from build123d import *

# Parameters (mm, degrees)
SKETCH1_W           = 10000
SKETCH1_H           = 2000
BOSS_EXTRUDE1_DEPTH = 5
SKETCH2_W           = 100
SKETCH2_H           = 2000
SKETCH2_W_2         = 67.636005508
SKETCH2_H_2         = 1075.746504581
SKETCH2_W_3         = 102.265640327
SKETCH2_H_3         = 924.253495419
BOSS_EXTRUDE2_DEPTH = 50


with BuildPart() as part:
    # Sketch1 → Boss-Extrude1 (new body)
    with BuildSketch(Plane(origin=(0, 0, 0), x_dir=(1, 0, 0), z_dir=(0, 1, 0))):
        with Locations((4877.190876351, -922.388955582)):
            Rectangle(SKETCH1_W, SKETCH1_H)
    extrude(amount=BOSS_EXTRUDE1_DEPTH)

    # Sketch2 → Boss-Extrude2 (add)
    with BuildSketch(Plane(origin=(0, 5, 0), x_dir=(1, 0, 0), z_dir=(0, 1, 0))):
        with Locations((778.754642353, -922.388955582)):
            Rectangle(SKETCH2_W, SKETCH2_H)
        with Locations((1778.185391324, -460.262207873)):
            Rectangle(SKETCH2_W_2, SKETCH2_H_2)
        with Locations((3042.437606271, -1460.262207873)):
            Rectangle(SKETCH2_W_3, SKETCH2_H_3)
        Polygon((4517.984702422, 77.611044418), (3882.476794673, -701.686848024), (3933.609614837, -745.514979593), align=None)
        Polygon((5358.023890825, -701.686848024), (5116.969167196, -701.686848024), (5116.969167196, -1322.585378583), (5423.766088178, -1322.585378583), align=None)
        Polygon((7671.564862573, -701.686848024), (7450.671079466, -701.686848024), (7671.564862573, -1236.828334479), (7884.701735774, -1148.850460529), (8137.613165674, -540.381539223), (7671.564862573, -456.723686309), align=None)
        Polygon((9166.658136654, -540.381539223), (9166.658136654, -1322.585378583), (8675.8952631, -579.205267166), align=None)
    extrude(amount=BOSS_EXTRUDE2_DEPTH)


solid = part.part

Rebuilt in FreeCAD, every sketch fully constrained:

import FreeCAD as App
import Part
import Sketcher


def add_polygon(sketch, points):
    """Adds a closed chain of lines whose ends are joined by coincident constraints."""
    first, n = sketch.GeometryCount, len(points)
    for a, b in zip(points, points[1:] + points[:1]):
        sketch.addGeometry(Part.LineSegment(App.Vector(*a, 0), App.Vector(*b, 0)), False)
    for i in range(n):
        sketch.addConstraint(Sketcher.Constraint("Coincident", first + i, 2, first + (i + 1) % n, 1))

doc = App.newDocument("Part")
body = doc.addObject("PartDesign::Body", "Body")

sketch1 = doc.addObject("Sketcher::SketchObject", "Sketch")
body.addObject(sketch1)
sketch1.AttachmentSupport = (doc.XZ_Plane, [""])
sketch1.MapMode = "FlatFace"
add_polygon(sketch1, [(-122.809124, -77.611044), (-122.809124, 1922.388956), (9877.190876, 1922.388956), (9877.190876, -77.611044)])
sketch1.addConstraint(Sketcher.Constraint("Vertical", 0))
sketch1.addConstraint(Sketcher.Constraint("Horizontal", 1))
sketch1.addConstraint(Sketcher.Constraint("Vertical", 2))
sketch1.addConstraint(Sketcher.Constraint("Horizontal", 3))
sketch1.addConstraint(Sketcher.Constraint("DistanceX", 1, 1, 1, 2, 10000.0))
sketch1.addConstraint(Sketcher.Constraint("DistanceY", 0, 1, 0, 2, 2000.0))
sketch1.addConstraint(Sketcher.Constraint("DistanceX", 0, 2, -1, 1, 122.809124))
sketch1.addConstraint(Sketcher.Constraint("DistanceY", -1, 1, 0, 2, 1922.388956))
pad1 = doc.addObject("PartDesign::Pad", "Pad")
body.addObject(pad1)
pad1.Profile = sketch1
pad1.Length = 5
pad1.Reversed = True

sketch2 = doc.addObject("Sketcher::SketchObject", "Sketch001")
body.addObject(sketch2)
sketch2.AttachmentSupport = (doc.XZ_Plane, [""])
sketch2.MapMode = "FlatFace"
sketch2.AttachmentOffset = App.Placement(App.Vector(0, 0, -5), App.Rotation())
add_polygon(sketch2, [(728.754642, -77.611044), (728.754642, 1922.388956), (828.754642, 1922.388956), (828.754642, -77.611044)])
add_polygon(sketch2, [(1744.367389, -77.611044), (1744.367389, 998.13546), (1812.003394, 998.13546), (1812.003394, -77.611044)])
add_polygon(sketch2, [(2991.304786, 998.13546), (2991.304786, 1922.388956), (3093.570426, 1922.388956), (3093.570426, 998.13546)])
add_polygon(sketch2, [(4517.984702, -77.611044), (3882.476795, 701.686848), (3933.609615, 745.51498)])
add_polygon(sketch2, [(5358.023891, 701.686848), (5116.969167, 701.686848), (5116.969167, 1322.585379), (5423.766088, 1322.585379)])
add_polygon(sketch2, [(7671.564863, 701.686848), (7450.671079, 701.686848), (7671.564863, 1236.828334), (7884.701736, 1148.850461), (8137.613166, 540.381539), (7671.564863, 456.723686)])
add_polygon(sketch2, [(9166.658137, 1322.585379), (9166.658137, 540.381539), (8675.895263, 579.205267)])
sketch2.addConstraint(Sketcher.Constraint("Vertical", 0))
sketch2.addConstraint(Sketcher.Constraint("Horizontal", 1))
sketch2.addConstraint(Sketcher.Constraint("Vertical", 2))
sketch2.addConstraint(Sketcher.Constraint("Horizontal", 3))
sketch2.addConstraint(Sketcher.Constraint("Vertical", 4))
sketch2.addConstraint(Sketcher.Constraint("Horizontal", 5))
sketch2.addConstraint(Sketcher.Constraint("Vertical", 6))
sketch2.addConstraint(Sketcher.Constraint("Horizontal", 7))
sketch2.addConstraint(Sketcher.Constraint("Vertical", 8))
sketch2.addConstraint(Sketcher.Constraint("Horizontal", 9))
sketch2.addConstraint(Sketcher.Constraint("Vertical", 10))
sketch2.addConstraint(Sketcher.Constraint("Horizontal", 11))
sketch2.addConstraint(Sketcher.Constraint("Horizontal", 15))
sketch2.addConstraint(Sketcher.Constraint("Vertical", 16))
sketch2.addConstraint(Sketcher.Constraint("Horizontal", 17))
sketch2.addConstraint(Sketcher.Constraint("Horizontal", 19))
sketch2.addConstraint(Sketcher.Constraint("Vertical", 24))
sketch2.addConstraint(Sketcher.Constraint("Vertical", 25))
sketch2.addConstraint(Sketcher.Constraint("Perpendicular", 20, 21))
sketch2.addConstraint(Sketcher.Constraint("Horizontal", 3, 2, 6, 2))
sketch2.addConstraint(Sketcher.Constraint("Horizontal", 1, 2, 8, 2))
sketch2.addConstraint(Sketcher.Constraint("Horizontal", 5, 2, 10, 2))
sketch2.addConstraint(Sketcher.Constraint("Horizontal", 7, 2, 14, 2))
sketch2.addConstraint(Sketcher.Constraint("Horizontal", 12, 2, 15, 2))
sketch2.addConstraint(Sketcher.Constraint("Horizontal", 18, 2, 19, 2))
sketch2.addConstraint(Sketcher.Constraint("Horizontal", 22, 2, 25, 2))
sketch2.addConstraint(Sketcher.Constraint("Horizontal", 17, 2, 27, 2))
sketch2.addConstraint(Sketcher.Constraint("Vertical", 20, 2, 23, 2))
sketch2.addConstraint(Sketcher.Constraint("DistanceX", 1, 1, 1, 2, 100.0))
sketch2.addConstraint(Sketcher.Constraint("DistanceY", 0, 1, 0, 2, 2000.0))
sketch2.addConstraint(Sketcher.Constraint("Distance", 13, 67.345901))
sketch2.addConstraint(Sketcher.Constraint("Distance", 14, 1009.470502))
sketch2.addConstraint(Sketcher.Constraint("Distance", 18, 624.369299))
sketch2.addConstraint(Sketcher.Constraint("DistanceX", 9, 1, 9, 2, 102.26564))
sketch2.addConstraint(Sketcher.Constraint("DistanceX", 17, 1, 17, 2, 306.796921))
sketch2.addConstraint(Sketcher.Constraint("DistanceY", 16, 1, 16, 2, 620.898531))
sketch2.addConstraint(Sketcher.Constraint("DistanceY", 24, 1, 24, 2, 244.963162))
sketch2.addConstraint(Sketcher.Constraint("DistanceY", 25, 2, 25, 1, 782.203839))
sketch2.addConstraint(Sketcher.Constraint("DistanceX", 5, 2, 12, 2, 2070.473401))
sketch2.addConstraint(Sketcher.Constraint("DistanceY", 13, 2, 16, 2, 577.070399))
sketch2.addConstraint(Sketcher.Constraint("DistanceX", 21, 2, 25, 2, 1281.956401))
sketch2.addConstraint(Sketcher.Constraint("DistanceX", 23, 2, 26, 2, 1004.330401))
sketch2.addConstraint(Sketcher.Constraint("Distance", 12, 1005.572228))
sketch2.addConstraint(Sketcher.Constraint("Distance", 26, 492.29613))
sketch2.addConstraint(Sketcher.Constraint("DistanceX", 5, 1, 5, 2, 67.636006))
sketch2.addConstraint(Sketcher.Constraint("DistanceX", 19, 2, 19, 1, 220.893783))
sketch2.addConstraint(Sketcher.Constraint("DistanceY", 4, 1, 4, 2, 1075.746505))
sketch2.addConstraint(Sketcher.Constraint("DistanceX", -1, 1, 4, 2, 1744.367389))
sketch2.addConstraint(Sketcher.Constraint("DistanceY", -1, 1, 4, 2, 998.13546))
sketch2.addConstraint(Sketcher.Constraint("DistanceX", -1, 1, 17, 2, 5423.766088))
sketch2.addConstraint(Sketcher.Constraint("DistanceX", -1, 1, 19, 2, 7450.671079))
sketch2.addConstraint(Sketcher.Constraint("DistanceY", -1, 1, 21, 2, 1148.850461))
sketch2.addConstraint(Sketcher.Constraint("DistanceX", 1, 2, 5, 2, 983.248752))
sketch2.addConstraint(Sketcher.Constraint("DistanceX", 10, 2, 12, 2, 788.906368))
sketch2.addConstraint(Sketcher.Constraint("DistanceX", 16, 2, 21, 2, 2767.732569))
sketch2.addConstraint(Sketcher.Constraint("DistanceX", 21, 2, 22, 2, 252.91143))
pad2 = doc.addObject("PartDesign::Pad", "Pad001")
body.addObject(pad2)
pad2.Profile = sketch2
pad2.Length = 50
pad2.Reversed = True

doc.recompute()
